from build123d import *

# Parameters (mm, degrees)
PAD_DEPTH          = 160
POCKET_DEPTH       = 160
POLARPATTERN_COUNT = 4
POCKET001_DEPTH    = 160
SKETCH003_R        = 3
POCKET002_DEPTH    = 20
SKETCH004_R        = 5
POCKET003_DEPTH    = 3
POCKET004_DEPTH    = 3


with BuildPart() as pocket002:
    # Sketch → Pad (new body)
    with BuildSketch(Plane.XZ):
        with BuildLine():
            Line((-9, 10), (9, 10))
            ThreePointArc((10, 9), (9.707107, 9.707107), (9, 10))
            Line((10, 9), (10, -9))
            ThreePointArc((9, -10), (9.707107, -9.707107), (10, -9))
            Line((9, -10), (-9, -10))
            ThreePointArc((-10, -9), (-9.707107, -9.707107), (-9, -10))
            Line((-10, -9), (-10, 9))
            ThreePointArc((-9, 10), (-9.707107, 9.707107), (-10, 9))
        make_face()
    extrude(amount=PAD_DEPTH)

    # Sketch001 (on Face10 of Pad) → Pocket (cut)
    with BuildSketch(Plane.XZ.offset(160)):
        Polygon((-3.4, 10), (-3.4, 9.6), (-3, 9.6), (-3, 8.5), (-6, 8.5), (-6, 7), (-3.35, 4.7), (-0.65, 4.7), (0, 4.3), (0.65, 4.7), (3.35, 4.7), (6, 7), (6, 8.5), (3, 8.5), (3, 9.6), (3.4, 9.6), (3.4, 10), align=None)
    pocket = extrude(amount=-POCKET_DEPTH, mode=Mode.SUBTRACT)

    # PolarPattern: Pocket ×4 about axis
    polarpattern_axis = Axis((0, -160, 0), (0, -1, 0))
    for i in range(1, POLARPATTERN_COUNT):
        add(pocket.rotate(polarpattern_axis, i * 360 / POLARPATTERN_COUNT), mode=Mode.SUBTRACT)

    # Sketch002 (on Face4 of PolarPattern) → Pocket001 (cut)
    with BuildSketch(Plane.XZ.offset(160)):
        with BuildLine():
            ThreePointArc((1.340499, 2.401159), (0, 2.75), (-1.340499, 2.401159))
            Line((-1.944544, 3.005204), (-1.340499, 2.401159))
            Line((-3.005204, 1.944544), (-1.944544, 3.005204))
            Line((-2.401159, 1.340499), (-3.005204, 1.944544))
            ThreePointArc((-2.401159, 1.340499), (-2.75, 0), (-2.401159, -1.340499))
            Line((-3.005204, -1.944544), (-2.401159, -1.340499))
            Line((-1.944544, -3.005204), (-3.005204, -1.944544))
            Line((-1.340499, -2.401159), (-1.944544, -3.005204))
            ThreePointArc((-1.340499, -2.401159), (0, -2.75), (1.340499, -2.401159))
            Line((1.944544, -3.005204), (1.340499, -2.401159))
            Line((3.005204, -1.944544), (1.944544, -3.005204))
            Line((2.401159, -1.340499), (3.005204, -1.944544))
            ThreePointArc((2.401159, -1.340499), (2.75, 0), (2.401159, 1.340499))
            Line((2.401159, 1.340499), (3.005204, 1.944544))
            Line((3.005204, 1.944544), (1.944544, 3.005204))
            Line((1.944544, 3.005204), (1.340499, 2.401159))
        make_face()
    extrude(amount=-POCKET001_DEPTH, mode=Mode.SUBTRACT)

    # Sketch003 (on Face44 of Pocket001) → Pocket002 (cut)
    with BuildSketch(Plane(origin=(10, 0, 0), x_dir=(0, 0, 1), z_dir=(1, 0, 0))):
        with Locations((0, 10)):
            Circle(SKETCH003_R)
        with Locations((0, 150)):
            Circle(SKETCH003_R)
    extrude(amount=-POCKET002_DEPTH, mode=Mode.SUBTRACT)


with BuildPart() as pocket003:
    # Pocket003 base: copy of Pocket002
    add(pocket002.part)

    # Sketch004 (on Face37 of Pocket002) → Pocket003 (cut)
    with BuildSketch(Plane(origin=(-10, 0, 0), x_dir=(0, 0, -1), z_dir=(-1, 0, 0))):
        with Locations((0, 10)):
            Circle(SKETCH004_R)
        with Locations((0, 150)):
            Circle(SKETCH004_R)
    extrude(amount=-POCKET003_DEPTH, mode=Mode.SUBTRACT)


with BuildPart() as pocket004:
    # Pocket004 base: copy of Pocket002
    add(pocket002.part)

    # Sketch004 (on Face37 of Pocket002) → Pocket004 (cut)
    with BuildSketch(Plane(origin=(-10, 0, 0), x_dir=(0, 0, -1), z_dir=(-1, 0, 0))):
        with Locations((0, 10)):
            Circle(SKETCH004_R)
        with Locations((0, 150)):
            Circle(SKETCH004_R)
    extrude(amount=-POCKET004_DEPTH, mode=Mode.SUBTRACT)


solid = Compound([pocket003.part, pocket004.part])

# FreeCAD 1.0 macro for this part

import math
import FreeCAD as App
import Part
import Sketcher
Q = App.Units.Quantity

doc = App.newDocument("Part")
params = doc.addObject("Spreadsheet::Sheet", "Params")
for row, (alias, value) in enumerate([
    ("sketch1_radius", "0.999999 mm"),
    ("sketch1_width", "18 mm"),
    ("pad1_length", "160 mm"),
    ("sketch2_width", "3 mm"),
    ("sketch2_width2", "0.4 mm"),
    ("sketch2_width3", "2.7 mm"),
    ("sketch2_width4", "6.8 mm"),
    ("sketch2_height", "1.1 mm"),
    ("pocket1_length", "160 mm"),
    ("sketch3_length", "1.5 mm"),
    ("pocket2_length", "160 mm"),
    ("sketch4_diameter", "6 mm"),
    ("pocket3_length", "20 mm"),
    ("sketch5_diameter", "10 mm"),
    ("pocket4_length", "3 mm"),
    ("sketch6_diameter", "10 mm"),
    ("pocket5_length", "3 mm"),
], start=1):
    params.set(f"A{row}", alias)
    params.set(f"B{row}", "=" + value)
    params.setAlias(f"B{row}", alias)

body = doc.addObject("PartDesign::Body", "Body")

# Sketch on XZ plane
sketch1 = body.newObject("Sketcher::SketchObject", "Sketch")
sketch1.AttachmentSupport = (doc.getObject("XZ_Plane"), [""])
sketch1.MapMode = "FlatFace"
sketch1.addGeometry([
    Part.LineSegment(App.Vector(9, 10, 0), App.Vector(-9, 10, 0)),  # 0
    Part.ArcOfCircle(Part.Circle(App.Vector(-9, 9, 0), App.Vector(0, 0, 1), 1), math.radians(90), math.radians(180)),  # 1
    Part.LineSegment(App.Vector(-10, 9, 0), App.Vector(-10, -9, 0)),  # 2
    Part.ArcOfCircle(Part.Circle(App.Vector(-9, -9, 0), App.Vector(0, 0, 1), 1), math.radians(180), math.radians(270)),  # 3
    Part.LineSegment(App.Vector(-9, -10, 0), App.Vector(9, -10, 0)),  # 4
    Part.ArcOfCircle(Part.Circle(App.Vector(9, -9, 0), App.Vector(0, 0, 1), 1), math.radians(-90), math.radians(0)),  # 5
    Part.LineSegment(App.Vector(10, -9, 0), App.Vector(10, 9, 0)),  # 6
    Part.ArcOfCircle(Part.Circle(App.Vector(9, 9, 0), App.Vector(0, 0, 1), 1), math.radians(0), math.radians(90)),  # 7
], False)
sketch1.addConstraint([
    Sketcher.Constraint("Tangent", 0, 2, 1, 1),
    Sketcher.Constraint("Tangent", 1, 2, 2, 1),
    Sketcher.Constraint("Tangent", 2, 2, 3, 1),
    Sketcher.Constraint("Tangent", 3, 2, 4, 1),
    Sketcher.Constraint("Tangent", 4, 2, 5, 1),
    Sketcher.Constraint("Tangent", 5, 2, 6, 1),
    Sketcher.Constraint("Tangent", 6, 2, 7, 1),
    Sketcher.Constraint("Tangent", 7, 2, 0, 1),
    Sketcher.Constraint("Horizontal", 0),
    Sketcher.Constraint("Vertical", 2),
    Sketcher.Constraint("Horizontal", 4),
    Sketcher.Constraint("Vertical", 6),
    Sketcher.Constraint("Equal", 1, 3),
    Sketcher.Constraint("Equal", 3, 5),
    Sketcher.Constraint("Equal", 5, 7),
    Sketcher.Constraint("Symmetric", 1, 3, 5, 3, -1, 1),
    Sketcher.Constraint("Equal", 4, 2),
    Sketcher.Constraint("Radius", 1, Q("0.999999 mm")),
    Sketcher.Constraint("DistanceX", 0, 2, 0, 1, Q("18 mm")),
])
sketch1.setExpression("Constraints[17]", "Params.sketch1_radius")
sketch1.setExpression("Constraints[18]", "Params.sketch1_width")
pad1 = body.newObject("PartDesign::Pad", "Pad")
pad1.Profile = sketch1
pad1.setExpression("Length", "Params.pad1_length")

# Sketch on XZ plane
sketch2 = body.newObject("Sketcher::SketchObject", "Sketch001")
sketch2.AttachmentSupport = (doc.getObject("XZ_Plane"), [""])
sketch2.MapMode = "FlatFace"
sketch2.AttachmentOffset = App.Placement(App.Vector(0, 0, 160), App.Rotation())
sketch2.addGeometry([
    Part.LineSegment(App.Vector(-3.4, 10, 0), App.Vector(-3.4, 9.6, 0)),  # 0
    Part.LineSegment(App.Vector(-3.4, 9.6, 0), App.Vector(-3, 9.6, 0)),  # 1
    Part.LineSegment(App.Vector(-3, 9.6, 0), App.Vector(-3, 8.5, 0)),  # 2
    Part.LineSegment(App.Vector(-3, 8.5, 0), App.Vector(-6, 8.5, 0)),  # 3
    Part.LineSegment(App.Vector(-6, 8.5, 0), App.Vector(-6, 7, 0)),  # 4
    Part.LineSegment(App.Vector(-6, 7, 0), App.Vector(-3.35, 4.7, 0)),  # 5
    Part.LineSegment(App.Vector(-3.35, 4.7, 0), App.Vector(-0.65, 4.7, 0)),  # 6
    Part.LineSegment(App.Vector(-0.65, 4.7, 0), App.Vector(0, 4.3, 0)),  # 7
    Part.LineSegment(App.Vector(0, 4.3, 0), App.Vector(0.65, 4.7, 0)),  # 8
    Part.LineSegment(App.Vector(0.65, 4.7, 0), App.Vector(3.35, 4.7, 0)),  # 9
    Part.LineSegment(App.Vector(3.35, 4.7, 0), App.Vector(6, 7, 0)),  # 10
    Part.LineSegment(App.Vector(6, 7, 0), App.Vector(6, 8.5, 0)),  # 11
    Part.LineSegment(App.Vector(6, 8.5, 0), App.Vector(3, 8.5, 0)),  # 12
    Part.LineSegment(App.Vector(3, 8.5, 0), App.Vector(3, 9.6, 0)),  # 13
    Part.LineSegment(App.Vector(3, 9.6, 0), App.Vector(3.4, 9.6, 0)),  # 14
    Part.LineSegment(App.Vector(3.4, 9.6, 0), App.Vector(3.4, 10, 0)),  # 15
    Part.LineSegment(App.Vector(3.4, 10, 0), App.Vector(-3.4, 10, 0)),  # 16
], False)
sketch2.addConstraint([
    Sketcher.Constraint("Coincident", 0, 2, 1, 1),
    Sketcher.Constraint("Coincident", 1, 2, 2, 1),
    Sketcher.Constraint("Coincident", 2, 2, 3, 1),
    Sketcher.Constraint("Coincident", 3, 2, 4, 1),
    Sketcher.Constraint("Coincident", 4, 2, 5, 1),
    Sketcher.Constraint("Coincident", 5, 2, 6, 1),
    Sketcher.Constraint("Coincident", 6, 2, 7, 1),
    Sketcher.Constraint("Coincident", 7, 2, 8, 1),
    Sketcher.Constraint("Coincident", 8, 2, 9, 1),
    Sketcher.Constraint("Coincident", 9, 2, 10, 1),
    Sketcher.Constraint("Coincident", 10, 2, 11, 1),
    Sketcher.Constraint("Coincident", 11, 2, 12, 1),
    Sketcher.Constraint("Coincident", 12, 2, 13, 1),
    Sketcher.Constraint("Coincident", 13, 2, 14, 1),
    Sketcher.Constraint("Coincident", 14, 2, 15, 1),
    Sketcher.Constraint("Coincident", 15, 2, 16, 1),
    Sketcher.Constraint("Coincident", 16, 2, 0, 1),
    Sketcher.Constraint("Vertical", 0),
    Sketcher.Constraint("Horizontal", 1),
    Sketcher.Constraint("Vertical", 2),
    Sketcher.Constraint("Horizontal", 3),
    Sketcher.Constraint("Vertical", 4),
    Sketcher.Constraint("Horizontal", 6),
    Sketcher.Constraint("Horizontal", 9),
    Sketcher.Constraint("Vertical", 11),
    Sketcher.Constraint("Horizontal", 12),
    Sketcher.Constraint("Vertical", 13),
    Sketcher.Constraint("Horizontal", 14),
    Sketcher.Constraint("Vertical", 15),
    Sketcher.Constraint("Horizontal", 16),
    Sketcher.Constraint("Symmetric", 6, 2, 8, 2, -2),
    Sketcher.Constraint("Symmetric", 4, 2, 10, 2, -2),
    Sketcher.Constraint("Symmetric", 2, 2, 12, 2, -2),
    Sketcher.Constraint("Symmetric", 0, 2, 14, 2, -2),
    Sketcher.Constraint("PointOnObject", 7, 2, -2),
    Sketcher.Constraint("Equal", 6, 9),
    Sketcher.Constraint("Equal", 14, 0),
    Sketcher.Constraint("DistanceX", 3, 2, 3, 1, Q("3 mm")),
    Sketcher.Constraint("DistanceX", 1, 1, 1, 2, Q("0.4 mm")),
    Sketcher.Constraint("DistanceX", 6, 1, 6, 2, Q("2.7 mm")),
    Sketcher.Constraint("DistanceX", 16, 2, 16, 1, Q("6.8 mm")),
    Sketcher.Constraint("DistanceY", 2, 2, 2, 1, Q("1.1 mm")),
    Sketcher.Constraint("DistanceY", 4, 2, 4, 1, Q("1.5 mm")),
    Sketcher.Constraint("DistanceY", -1, 1, 4, 2, Q("7 mm")),
    Sketcher.Constraint("DistanceX", 5, 2, 8, 2, Q("4 mm")),
    Sketcher.Constraint("DistanceY", -1, 1, 5, 2, Q("4.7 mm")),
    Sketcher.Constraint("DistanceY", -1, 1, 7, 2, Q("4.3 mm")),
])
sketch2.setExpression("Constraints[37]", "Params.sketch2_width")
sketch2.setExpression("Constraints[38]", "Params.sketch2_width2")
sketch2.setExpression("Constraints[39]", "Params.sketch2_width3")
sketch2.setExpression("Constraints[40]", "Params.sketch2_width4")
sketch2.setExpression("Constraints[41]", "Params.sketch2_height")
pocket1 = body.newObject("PartDesign::Pocket", "Pocket")
pocket1.Profile = sketch2
pocket1.setExpression("Length", "Params.pocket1_length")
doc.recompute()

polarpattern = body.newObject("PartDesign::PolarPattern", "PolarPattern")
polarpattern.Originals = [pocket1]
polarpattern.Axis = (doc.getObject("Y_Axis"), [""])
polarpattern.Angle = 360
polarpattern.Occurrences = 4
body.Tip = polarpattern

# Sketch on XZ plane
sketch3 = body.newObject("Sketcher::SketchObject", "Sketch002")
sketch3.AttachmentSupport = (doc.getObject("XZ_Plane"), [""])
sketch3.MapMode = "FlatFace"
sketch3.AttachmentOffset = App.Placement(App.Vector(0, 0, 160), App.Rotation())
sketch3.addGeometry([
    Part.ArcOfCircle(Part.Circle(App.Vector(0, 0, 0), App.Vector(0, 0, 1), 2.8), math.radians(61), math.radians(119)),  # 0
    Part.LineSegment(App.Vector(-1.3, 2.4, 0), App.Vector(-1.9, 3, 0)),  # 1
    Part.LineSegment(App.Vector(-1.9, 3, 0), App.Vector(-3, 1.9, 0)),  # 2
    Part.LineSegment(App.Vector(-3, 1.9, 0), App.Vector(-2.4, 1.3, 0)),  # 3
    Part.ArcOfCircle(Part.Circle(App.Vector(0, 0, 0), App.Vector(0, 0, 1), 2.8), math.radians(151), math.radians(209)),  # 4
    Part.LineSegment(App.Vector(-2.4, -1.3, 0), App.Vector(-3, -1.9, 0)),  # 5
    Part.LineSegment(App.Vector(-3, -1.9, 0), App.Vector(-1.9, -3, 0)),  # 6
    Part.LineSegment(App.Vector(-1.9, -3, 0), App.Vector(-1.3, -2.4, 0)),  # 7
    Part.ArcOfCircle(Part.Circle(App.Vector(0, 0, 0), App.Vector(0, 0, 1), 2.8), math.radians(-119), math.radians(-61)),  # 8
    Part.LineSegment(App.Vector(1.3, -2.4, 0), App.Vector(1.9, -3, 0)),  # 9
    Part.LineSegment(App.Vector(1.9, -3, 0), App.Vector(3, -1.9, 0)),  # 10
    Part.LineSegment(App.Vector(3, -1.9, 0), App.Vector(2.4, -1.3, 0)),  # 11
    Part.ArcOfCircle(Part.Circle(App.Vector(0, 0, 0), App.Vector(0, 0, 1), 2.8), math.radians(-29), math.radians(29)),  # 12
    Part.LineSegment(App.Vector(2.4, 1.3, 0), App.Vector(3, 1.9, 0)),  # 13
    Part.LineSegment(App.Vector(3, 1.9, 0), App.Vector(1.9, 3, 0)),  # 14
    Part.LineSegment(App.Vector(1.9, 3, 0), App.Vector(1.3, 2.4, 0)),  # 15
], False)
sketch3.addConstraint([
    Sketcher.Constraint("Coincident", 0, 2, 1, 1),
    Sketcher.Constraint("Coincident", 1, 2, 2, 1),
    Sketcher.Constraint("Coincident", 2, 2, 3, 1),
    Sketcher.Constraint("Coincident", 3, 2, 4, 1),
    Sketcher.Constraint("Coincident", 4, 2, 5, 1),
    Sketcher.Constraint("Coincident", 5, 2, 6, 1),
    Sketcher.Constraint("Coincident", 6, 2, 7, 1),
    Sketcher.Constraint("Coincident", 7, 2, 8, 1),
    Sketcher.Constraint("Coincident", 8, 2, 9, 1),
    Sketcher.Constraint("Coincident", 9, 2, 10, 1),
    Sketcher.Constraint("Coincident", 10, 2, 11, 1),
    Sketcher.Constraint("Coincident", 11, 2, 12, 1),
    Sketcher.Constraint("Coincident", 12, 2, 13, 1),
    Sketcher.Constraint("Coincident", 13, 2, 14, 1),
    Sketcher.Constraint("Coincident", 14, 2, 15, 1),
    Sketcher.Constraint("Coincident", 15, 2, 0, 1),
    Sketcher.Constraint("Coincident", 0, 3, -1, 1),
    Sketcher.Constraint("Coincident", 4, 3, -1, 1),
    Sketcher.Constraint("Coincident", 8, 3, -1, 1),
    Sketcher.Constraint("Coincident", 12, 3, -1, 1),
    Sketcher.Constraint("Equal", 0, 4),
    Sketcher.Constraint("Equal", 4, 8),
    Sketcher.Constraint("Equal", 8, 12),
    Sketcher.Constraint("Symmetric", 1, 2, 9, 2, -1, 1),
    Sketcher.Constraint("Symmetric", 2, 2, 10, 2, -1, 1),
    Sketcher.Constraint("Symmetric", 5, 2, 13, 2, -1, 1),
    Sketcher.Constraint("Symmetric", 6, 2, 14, 2, -1, 1),
    Sketcher.Constraint("Symmetric", 6, 2, 9, 2, -2),
    Sketcher.Constraint("Symmetric", 5, 2, 10, 2, -2),
    Sketcher.Constraint("Perpendicular", 1, 2),
    Sketcher.Constraint("Perpendicular", 2, 3),
    Sketcher.Constraint("Perpendicular", 3, 5),
    Sketcher.Constraint("Perpendicular", 5, 6),
    Sketcher.Constraint("Perpendicular", 6, 7),
    Sketcher.Constraint("Perpendicular", 7, 9),
    Sketcher.Constraint("Perpendicular", 10, 11),
    Sketcher.Constraint("Perpendicular", 11, 13),
    Sketcher.Constraint("Perpendicular", 14, 15),
    Sketcher.Constraint("Equal", 1, 3),
    Sketcher.Constraint("Distance", 2, Q("1.5 mm")),
    Sketcher.Constraint("Radius", 0, Q("2.750003 mm")),
    Sketcher.Constraint("DistanceY", 8, 3, 1, 2, Q("3.005201 mm")),
])
sketch3.setExpression("Constraints[39]", "Params.sketch3_length")
pocket2 = body.newObject("PartDesign::Pocket", "Pocket001")
pocket2.Profile = sketch3
pocket2.setExpression("Length", "Params.pocket2_length")

# Sketch on YZ plane
sketch4 = body.newObject("Sketcher::SketchObject", "Sketch003")
sketch4.AttachmentSupport = (doc.getObject("YZ_Plane"), [""])
sketch4.MapMode = "FlatFace"
sketch4.AttachmentOffset = App.Placement(App.Vector(0, 0, 10), App.Rotation())
sketch4.addGeometry([
    Part.Circle(App.Vector(-10, 0, 0), App.Vector(0, 0, 1), 3),
    Part.Circle(App.Vector(-150, 0, 0), App.Vector(0, 0, 1), 3),
], False)
sketch4.addConstraint([
    Sketcher.Constraint("Equal", 0, 1),
    Sketcher.Constraint("PointOnObject", 0, 3, -1),
    Sketcher.Constraint("PointOnObject", 1, 3, -1),
    Sketcher.Constraint("Diameter", 0, Q("6 mm")),
    Sketcher.Constraint("DistanceX", 0, 3, -1, 1, Q("10 mm")),
    Sketcher.Constraint("DistanceX", 1, 3, -1, 1, Q("150 mm")),
])
sketch4.setExpression("Constraints[3]", "Params.sketch4_diameter")
pocket3 = body.newObject("PartDesign::Pocket", "Pocket002")
pocket3.Profile = sketch4
pocket3.setExpression("Length", "Params.pocket3_length")
body2 = doc.addObject("PartDesign::Body", "Body001")
doc.recompute()

body2.BaseFeature = body
doc.recompute()

# Sketch on YZ plane
sketch5 = body2.newObject("Sketcher::SketchObject", "Sketch004")
sketch5.AttachmentSupport = (doc.getObject("YZ_Plane001"), [""])
sketch5.MapMode = "FlatFace"
sketch5.AttachmentOffset = App.Placement(App.Vector(0, 0, -10), App.Rotation())
sketch5.addGeometry([
    Part.Circle(App.Vector(-10, 0, 0), App.Vector(0, 0, 1), 5),
    Part.Circle(App.Vector(-150, 0, 0), App.Vector(0, 0, 1), 5),
], False)
sketch5.addConstraint([
    Sketcher.Constraint("Equal", 0, 1),
    Sketcher.Constraint("PointOnObject", 0, 3, -1),
    Sketcher.Constraint("PointOnObject", 1, 3, -1),
    Sketcher.Constraint("Diameter", 0, Q("10 mm")),
    Sketcher.Constraint("DistanceX", 0, 3, -1, 1, Q("10 mm")),
    Sketcher.Constraint("DistanceX", 1, 3, -1, 1, Q("150 mm")),
])
sketch5.setExpression("Constraints[3]", "Params.sketch5_diameter")
pocket4 = body2.newObject("PartDesign::Pocket", "Pocket003")
pocket4.Profile = sketch5
pocket4.setExpression("Length", "Params.pocket4_length")
pocket4.Reversed = True

# Sketch on YZ plane
sketch6 = body.newObject("Sketcher::SketchObject", "Sketch005")
sketch6.AttachmentSupport = (doc.getObject("YZ_Plane"), [""])
sketch6.MapMode = "FlatFace"
sketch6.AttachmentOffset = App.Placement(App.Vector(0, 0, -10), App.Rotation())
sketch6.addGeometry([
    Part.Circle(App.Vector(-10, 0, 0), App.Vector(0, 0, 1), 5),
    Part.Circle(App.Vector(-150, 0, 0), App.Vector(0, 0, 1), 5),
], False)
sketch6.addConstraint([
    Sketcher.Constraint("Equal", 0, 1),
    Sketcher.Constraint("PointOnObject", 0, 3, -1),
    Sketcher.Constraint("PointOnObject", 1, 3, -1),
    Sketcher.Constraint("Diameter", 0, Q("10 mm")),
    Sketcher.Constraint("DistanceX", 0, 3, -1, 1, Q("10 mm")),
    Sketcher.Constraint("DistanceX", 1, 3, -1, 1, Q("150 mm")),
])
sketch6.setExpression("Constraints[3]", "Params.sketch6_diameter")
pocket5 = body.newObject("PartDesign::Pocket", "Pocket004")
pocket5.Profile = sketch6
pocket5.setExpression("Length", "Params.pocket5_length")
pocket5.Reversed = True

doc.recompute()
